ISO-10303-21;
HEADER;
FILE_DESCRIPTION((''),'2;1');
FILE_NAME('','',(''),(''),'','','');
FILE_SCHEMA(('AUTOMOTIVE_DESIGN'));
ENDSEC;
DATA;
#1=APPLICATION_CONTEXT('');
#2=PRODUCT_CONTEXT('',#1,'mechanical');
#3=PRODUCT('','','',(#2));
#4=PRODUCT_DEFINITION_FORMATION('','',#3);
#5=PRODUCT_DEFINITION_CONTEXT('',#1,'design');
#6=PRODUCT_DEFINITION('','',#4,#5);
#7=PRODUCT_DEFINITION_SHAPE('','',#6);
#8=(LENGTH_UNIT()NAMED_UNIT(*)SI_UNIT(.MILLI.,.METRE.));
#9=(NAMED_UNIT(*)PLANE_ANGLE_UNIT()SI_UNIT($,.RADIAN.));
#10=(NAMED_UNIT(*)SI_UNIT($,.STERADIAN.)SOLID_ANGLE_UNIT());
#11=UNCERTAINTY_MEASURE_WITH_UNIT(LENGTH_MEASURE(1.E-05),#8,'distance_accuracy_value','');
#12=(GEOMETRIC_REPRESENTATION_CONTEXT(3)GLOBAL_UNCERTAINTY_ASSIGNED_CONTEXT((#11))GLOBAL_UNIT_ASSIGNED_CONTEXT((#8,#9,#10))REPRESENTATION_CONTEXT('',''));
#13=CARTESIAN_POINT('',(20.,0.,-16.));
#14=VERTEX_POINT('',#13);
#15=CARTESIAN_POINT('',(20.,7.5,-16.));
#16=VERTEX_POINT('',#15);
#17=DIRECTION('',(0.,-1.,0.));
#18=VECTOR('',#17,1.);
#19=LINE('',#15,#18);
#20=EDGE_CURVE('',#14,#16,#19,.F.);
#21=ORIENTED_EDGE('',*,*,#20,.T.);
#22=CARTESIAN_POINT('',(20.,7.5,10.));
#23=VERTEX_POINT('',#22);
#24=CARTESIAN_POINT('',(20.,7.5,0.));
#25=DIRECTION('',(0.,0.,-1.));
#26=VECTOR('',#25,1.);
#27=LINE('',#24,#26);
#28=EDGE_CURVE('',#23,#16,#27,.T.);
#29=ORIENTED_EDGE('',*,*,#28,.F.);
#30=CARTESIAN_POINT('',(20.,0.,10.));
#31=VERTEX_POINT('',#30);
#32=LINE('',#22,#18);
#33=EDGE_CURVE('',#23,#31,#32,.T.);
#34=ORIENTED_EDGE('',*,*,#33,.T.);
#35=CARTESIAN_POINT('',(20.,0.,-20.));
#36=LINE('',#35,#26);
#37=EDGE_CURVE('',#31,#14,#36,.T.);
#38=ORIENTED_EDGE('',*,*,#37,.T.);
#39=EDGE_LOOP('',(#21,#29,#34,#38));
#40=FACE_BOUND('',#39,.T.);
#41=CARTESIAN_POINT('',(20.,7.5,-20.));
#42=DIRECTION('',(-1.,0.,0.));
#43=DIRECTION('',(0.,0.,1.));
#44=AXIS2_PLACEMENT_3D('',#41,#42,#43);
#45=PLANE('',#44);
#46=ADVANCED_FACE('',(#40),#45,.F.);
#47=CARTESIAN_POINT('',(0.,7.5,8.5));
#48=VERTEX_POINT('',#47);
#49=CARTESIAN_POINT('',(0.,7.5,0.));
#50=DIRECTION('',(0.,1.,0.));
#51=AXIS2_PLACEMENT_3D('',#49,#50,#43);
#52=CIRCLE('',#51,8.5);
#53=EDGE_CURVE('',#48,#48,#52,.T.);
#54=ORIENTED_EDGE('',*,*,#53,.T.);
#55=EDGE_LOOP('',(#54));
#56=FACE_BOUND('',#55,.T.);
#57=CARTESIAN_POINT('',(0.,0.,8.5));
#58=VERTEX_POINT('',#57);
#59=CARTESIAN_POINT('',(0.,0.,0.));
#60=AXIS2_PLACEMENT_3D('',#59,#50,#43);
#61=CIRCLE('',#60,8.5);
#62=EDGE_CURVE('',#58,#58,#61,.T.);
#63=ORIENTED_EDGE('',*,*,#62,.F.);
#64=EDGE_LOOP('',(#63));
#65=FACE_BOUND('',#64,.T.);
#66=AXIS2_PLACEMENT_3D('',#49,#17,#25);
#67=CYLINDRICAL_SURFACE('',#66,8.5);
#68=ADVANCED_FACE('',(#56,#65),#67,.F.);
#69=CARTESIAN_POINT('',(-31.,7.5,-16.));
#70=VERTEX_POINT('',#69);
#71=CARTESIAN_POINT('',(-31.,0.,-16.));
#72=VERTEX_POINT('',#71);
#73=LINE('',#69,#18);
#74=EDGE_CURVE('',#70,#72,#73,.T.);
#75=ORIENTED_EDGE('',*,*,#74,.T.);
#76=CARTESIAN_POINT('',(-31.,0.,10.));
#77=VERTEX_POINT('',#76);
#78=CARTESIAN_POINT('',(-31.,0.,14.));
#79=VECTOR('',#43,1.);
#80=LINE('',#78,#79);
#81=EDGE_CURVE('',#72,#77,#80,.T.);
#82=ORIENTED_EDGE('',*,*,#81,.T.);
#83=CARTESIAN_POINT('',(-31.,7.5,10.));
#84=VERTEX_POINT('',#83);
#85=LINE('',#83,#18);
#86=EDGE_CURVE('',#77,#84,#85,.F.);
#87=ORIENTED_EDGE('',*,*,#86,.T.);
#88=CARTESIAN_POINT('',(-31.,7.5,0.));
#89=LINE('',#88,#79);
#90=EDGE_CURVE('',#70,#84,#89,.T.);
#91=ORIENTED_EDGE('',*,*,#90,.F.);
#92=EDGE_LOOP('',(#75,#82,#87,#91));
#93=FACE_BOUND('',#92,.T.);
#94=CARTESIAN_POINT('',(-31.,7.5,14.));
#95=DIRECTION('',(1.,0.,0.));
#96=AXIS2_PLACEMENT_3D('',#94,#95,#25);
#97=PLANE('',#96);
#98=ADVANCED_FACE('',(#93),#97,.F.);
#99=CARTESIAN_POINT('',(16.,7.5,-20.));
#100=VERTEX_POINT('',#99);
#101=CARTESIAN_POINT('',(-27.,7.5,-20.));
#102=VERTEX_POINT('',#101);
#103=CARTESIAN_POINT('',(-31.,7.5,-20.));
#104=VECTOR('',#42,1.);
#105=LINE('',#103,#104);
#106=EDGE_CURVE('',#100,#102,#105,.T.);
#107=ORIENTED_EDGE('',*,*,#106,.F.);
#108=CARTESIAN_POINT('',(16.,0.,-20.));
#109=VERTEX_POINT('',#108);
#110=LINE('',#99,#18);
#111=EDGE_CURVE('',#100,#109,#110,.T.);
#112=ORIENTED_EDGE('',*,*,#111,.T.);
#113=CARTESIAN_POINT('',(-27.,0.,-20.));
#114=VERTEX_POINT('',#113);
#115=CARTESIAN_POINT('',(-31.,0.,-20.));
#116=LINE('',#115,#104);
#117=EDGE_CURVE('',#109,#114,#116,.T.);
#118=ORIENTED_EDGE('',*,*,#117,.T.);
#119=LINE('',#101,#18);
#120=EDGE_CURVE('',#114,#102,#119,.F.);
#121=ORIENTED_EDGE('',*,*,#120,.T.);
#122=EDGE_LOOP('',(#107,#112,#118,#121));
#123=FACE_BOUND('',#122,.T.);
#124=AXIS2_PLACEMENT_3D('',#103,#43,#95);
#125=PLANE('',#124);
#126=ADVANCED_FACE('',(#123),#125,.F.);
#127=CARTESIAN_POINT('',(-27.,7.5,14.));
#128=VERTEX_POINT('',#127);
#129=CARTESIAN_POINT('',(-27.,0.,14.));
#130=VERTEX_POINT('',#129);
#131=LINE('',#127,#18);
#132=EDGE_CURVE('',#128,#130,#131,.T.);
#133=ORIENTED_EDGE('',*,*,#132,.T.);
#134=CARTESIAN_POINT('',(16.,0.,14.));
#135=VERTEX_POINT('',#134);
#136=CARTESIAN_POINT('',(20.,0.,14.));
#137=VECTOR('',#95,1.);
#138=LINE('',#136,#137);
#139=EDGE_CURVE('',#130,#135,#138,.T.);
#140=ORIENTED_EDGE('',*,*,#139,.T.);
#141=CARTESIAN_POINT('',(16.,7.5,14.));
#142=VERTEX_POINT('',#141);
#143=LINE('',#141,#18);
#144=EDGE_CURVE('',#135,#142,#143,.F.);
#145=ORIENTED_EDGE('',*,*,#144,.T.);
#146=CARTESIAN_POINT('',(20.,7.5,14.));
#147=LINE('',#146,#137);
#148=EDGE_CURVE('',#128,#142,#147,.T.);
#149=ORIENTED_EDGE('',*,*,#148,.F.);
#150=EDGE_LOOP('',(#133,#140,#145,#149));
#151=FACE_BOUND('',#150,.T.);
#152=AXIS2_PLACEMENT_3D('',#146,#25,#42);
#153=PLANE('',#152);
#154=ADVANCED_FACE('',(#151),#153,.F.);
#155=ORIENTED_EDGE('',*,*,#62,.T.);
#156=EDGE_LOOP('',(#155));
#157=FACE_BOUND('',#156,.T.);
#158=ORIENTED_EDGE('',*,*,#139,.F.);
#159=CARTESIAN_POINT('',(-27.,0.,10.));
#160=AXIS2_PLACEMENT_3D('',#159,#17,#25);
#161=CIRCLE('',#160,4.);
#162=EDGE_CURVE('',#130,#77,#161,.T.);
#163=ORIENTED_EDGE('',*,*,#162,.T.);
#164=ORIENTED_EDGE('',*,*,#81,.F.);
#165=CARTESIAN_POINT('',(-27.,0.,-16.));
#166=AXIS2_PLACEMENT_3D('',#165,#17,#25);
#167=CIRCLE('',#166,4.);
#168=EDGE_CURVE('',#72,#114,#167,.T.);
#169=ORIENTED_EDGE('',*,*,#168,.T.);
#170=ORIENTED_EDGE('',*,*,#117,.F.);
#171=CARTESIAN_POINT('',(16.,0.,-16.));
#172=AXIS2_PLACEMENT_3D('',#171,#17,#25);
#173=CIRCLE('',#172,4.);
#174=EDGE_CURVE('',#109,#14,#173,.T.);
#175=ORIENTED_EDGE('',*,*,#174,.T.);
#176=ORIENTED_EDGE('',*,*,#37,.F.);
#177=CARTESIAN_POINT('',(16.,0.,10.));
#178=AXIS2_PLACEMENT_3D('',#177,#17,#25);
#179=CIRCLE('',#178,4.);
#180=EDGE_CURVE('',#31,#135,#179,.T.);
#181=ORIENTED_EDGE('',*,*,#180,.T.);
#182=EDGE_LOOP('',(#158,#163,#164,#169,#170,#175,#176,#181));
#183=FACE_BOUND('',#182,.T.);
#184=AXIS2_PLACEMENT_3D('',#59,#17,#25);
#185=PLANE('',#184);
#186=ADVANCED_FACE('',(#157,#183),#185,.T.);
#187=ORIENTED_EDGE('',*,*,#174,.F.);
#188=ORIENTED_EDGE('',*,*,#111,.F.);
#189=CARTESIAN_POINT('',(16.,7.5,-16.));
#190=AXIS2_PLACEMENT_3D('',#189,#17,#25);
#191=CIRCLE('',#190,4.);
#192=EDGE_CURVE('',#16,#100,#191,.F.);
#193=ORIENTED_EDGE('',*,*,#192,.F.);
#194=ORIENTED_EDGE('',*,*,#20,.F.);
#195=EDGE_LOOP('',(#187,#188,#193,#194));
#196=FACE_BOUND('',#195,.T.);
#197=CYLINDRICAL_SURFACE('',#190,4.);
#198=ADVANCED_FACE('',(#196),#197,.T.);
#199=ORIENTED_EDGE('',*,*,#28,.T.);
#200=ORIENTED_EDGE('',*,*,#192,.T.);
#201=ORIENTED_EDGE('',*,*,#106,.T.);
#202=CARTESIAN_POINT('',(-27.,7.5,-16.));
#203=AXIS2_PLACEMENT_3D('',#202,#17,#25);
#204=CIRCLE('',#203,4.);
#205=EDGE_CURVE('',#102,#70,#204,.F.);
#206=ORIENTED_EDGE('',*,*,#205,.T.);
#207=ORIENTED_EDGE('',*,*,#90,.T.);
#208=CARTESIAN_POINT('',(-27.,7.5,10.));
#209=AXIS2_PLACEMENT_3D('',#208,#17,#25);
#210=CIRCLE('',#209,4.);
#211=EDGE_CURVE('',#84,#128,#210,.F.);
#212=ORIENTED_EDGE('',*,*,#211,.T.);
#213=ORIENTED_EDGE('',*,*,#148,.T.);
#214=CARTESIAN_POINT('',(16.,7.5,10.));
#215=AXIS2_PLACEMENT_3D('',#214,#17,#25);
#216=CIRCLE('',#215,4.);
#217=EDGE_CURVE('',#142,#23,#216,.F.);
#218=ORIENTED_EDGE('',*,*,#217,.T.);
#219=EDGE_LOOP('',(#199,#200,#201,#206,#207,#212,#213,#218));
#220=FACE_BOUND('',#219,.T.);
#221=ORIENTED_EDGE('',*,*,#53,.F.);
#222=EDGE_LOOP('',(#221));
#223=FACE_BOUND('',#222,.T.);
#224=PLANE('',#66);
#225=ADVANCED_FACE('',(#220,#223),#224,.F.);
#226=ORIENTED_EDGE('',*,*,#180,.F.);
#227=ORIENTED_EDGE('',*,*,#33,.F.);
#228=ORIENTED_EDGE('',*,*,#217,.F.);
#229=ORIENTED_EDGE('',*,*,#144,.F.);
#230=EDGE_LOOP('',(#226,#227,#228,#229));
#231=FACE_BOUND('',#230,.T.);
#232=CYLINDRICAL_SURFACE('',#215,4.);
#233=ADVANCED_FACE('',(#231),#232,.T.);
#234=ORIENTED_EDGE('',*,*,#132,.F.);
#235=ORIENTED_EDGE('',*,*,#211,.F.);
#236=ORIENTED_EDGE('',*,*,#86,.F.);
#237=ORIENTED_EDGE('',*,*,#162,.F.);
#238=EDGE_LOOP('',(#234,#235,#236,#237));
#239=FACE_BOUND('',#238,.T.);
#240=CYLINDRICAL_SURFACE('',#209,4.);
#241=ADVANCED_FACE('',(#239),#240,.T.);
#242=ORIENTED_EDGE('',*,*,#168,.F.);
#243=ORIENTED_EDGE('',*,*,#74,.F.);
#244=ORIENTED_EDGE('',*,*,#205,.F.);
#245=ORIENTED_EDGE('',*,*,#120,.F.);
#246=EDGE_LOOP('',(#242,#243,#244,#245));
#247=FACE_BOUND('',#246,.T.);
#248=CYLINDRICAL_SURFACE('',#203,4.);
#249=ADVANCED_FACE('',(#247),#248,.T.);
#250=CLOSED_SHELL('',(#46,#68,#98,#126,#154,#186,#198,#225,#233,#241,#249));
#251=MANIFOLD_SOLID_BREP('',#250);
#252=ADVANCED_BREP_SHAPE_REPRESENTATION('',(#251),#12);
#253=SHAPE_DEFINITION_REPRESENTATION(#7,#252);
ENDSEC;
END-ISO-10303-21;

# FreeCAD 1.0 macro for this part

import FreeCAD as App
import Part
import Sketcher


def edges_at(feature, points):
    """Names of the edges that pass closest to the given points."""
    edges = feature.Shape.Edges
    near = lambda p: min(range(len(edges)), key=lambda i: edges[i].distToShape(Part.Vertex(*p))[0])
    return sorted({f"Edge{near(p) + 1}" for p in points})


def add_polygon(sketch, points):
    """Adds a closed chain of lines whose ends are joined by coincident constraints."""
    first, n = sketch.GeometryCount, len(points)
    for a, b in zip(points, points[1:] + points[:1]):
        sketch.addGeometry(Part.LineSegment(App.Vector(*a, 0), App.Vector(*b, 0)), False)
    for i in range(n):
        sketch.addConstraint(Sketcher.Constraint("Coincident", first + i, 2, first + (i + 1) % n, 1))

doc = App.newDocument("Part")
body = doc.addObject("PartDesign::Body", "Body")

# Sketch on XZ plane
sketch1 = body.newObject("Sketcher::SketchObject", "Sketch")
sketch1.AttachmentSupport = (doc.getObject("XZ_Plane"), [""])
sketch1.MapMode = "FlatFace"
add_polygon(sketch1, [(-31, -20), (-31, 14), (20, 14), (20, -20)])  # lines 0-3
sketch1.addGeometry(Part.Circle(App.Vector(0, 0, 0), App.Vector(0, 0, 1), 8), False)  # 4
sketch1.addConstraint(Sketcher.Constraint("Vertical", 0))
sketch1.addConstraint(Sketcher.Constraint("Horizontal", 1))
sketch1.addConstraint(Sketcher.Constraint("Vertical", 2))
sketch1.addConstraint(Sketcher.Constraint("Horizontal", 3))
sketch1.addConstraint(Sketcher.Constraint("Coincident", 4, 3, -1, 1))
sketch1.addConstraint(Sketcher.Constraint("Diameter", 4, 17.0))
sketch1.addConstraint(Sketcher.Constraint("DistanceX", 1, 1, 1, 2, 51.0))
sketch1.addConstraint(Sketcher.Constraint("DistanceY", 0, 1, 0, 2, 34.0))
sketch1.addConstraint(Sketcher.Constraint("DistanceX", 0, 2, -1, 1, 31.0))
sketch1.addConstraint(Sketcher.Constraint("DistanceY", -1, 1, 0, 2, 14.0))
pad1 = body.newObject("PartDesign::Pad", "Pad")
pad1.Profile = sketch1
pad1.Length = 7.5
pad1.Reversed = True
doc.recompute()

fillet = body.newObject("PartDesign::Fillet", "Fillet")
fillet.Base = (pad1, edges_at(pad1, [
    (20, 3.75, 14),
    (-31, 3.75, 14),
    (-31, 3.75, -20),
    (20, 3.75, -20),
]))
fillet.Radius = 4

doc.recompute()
